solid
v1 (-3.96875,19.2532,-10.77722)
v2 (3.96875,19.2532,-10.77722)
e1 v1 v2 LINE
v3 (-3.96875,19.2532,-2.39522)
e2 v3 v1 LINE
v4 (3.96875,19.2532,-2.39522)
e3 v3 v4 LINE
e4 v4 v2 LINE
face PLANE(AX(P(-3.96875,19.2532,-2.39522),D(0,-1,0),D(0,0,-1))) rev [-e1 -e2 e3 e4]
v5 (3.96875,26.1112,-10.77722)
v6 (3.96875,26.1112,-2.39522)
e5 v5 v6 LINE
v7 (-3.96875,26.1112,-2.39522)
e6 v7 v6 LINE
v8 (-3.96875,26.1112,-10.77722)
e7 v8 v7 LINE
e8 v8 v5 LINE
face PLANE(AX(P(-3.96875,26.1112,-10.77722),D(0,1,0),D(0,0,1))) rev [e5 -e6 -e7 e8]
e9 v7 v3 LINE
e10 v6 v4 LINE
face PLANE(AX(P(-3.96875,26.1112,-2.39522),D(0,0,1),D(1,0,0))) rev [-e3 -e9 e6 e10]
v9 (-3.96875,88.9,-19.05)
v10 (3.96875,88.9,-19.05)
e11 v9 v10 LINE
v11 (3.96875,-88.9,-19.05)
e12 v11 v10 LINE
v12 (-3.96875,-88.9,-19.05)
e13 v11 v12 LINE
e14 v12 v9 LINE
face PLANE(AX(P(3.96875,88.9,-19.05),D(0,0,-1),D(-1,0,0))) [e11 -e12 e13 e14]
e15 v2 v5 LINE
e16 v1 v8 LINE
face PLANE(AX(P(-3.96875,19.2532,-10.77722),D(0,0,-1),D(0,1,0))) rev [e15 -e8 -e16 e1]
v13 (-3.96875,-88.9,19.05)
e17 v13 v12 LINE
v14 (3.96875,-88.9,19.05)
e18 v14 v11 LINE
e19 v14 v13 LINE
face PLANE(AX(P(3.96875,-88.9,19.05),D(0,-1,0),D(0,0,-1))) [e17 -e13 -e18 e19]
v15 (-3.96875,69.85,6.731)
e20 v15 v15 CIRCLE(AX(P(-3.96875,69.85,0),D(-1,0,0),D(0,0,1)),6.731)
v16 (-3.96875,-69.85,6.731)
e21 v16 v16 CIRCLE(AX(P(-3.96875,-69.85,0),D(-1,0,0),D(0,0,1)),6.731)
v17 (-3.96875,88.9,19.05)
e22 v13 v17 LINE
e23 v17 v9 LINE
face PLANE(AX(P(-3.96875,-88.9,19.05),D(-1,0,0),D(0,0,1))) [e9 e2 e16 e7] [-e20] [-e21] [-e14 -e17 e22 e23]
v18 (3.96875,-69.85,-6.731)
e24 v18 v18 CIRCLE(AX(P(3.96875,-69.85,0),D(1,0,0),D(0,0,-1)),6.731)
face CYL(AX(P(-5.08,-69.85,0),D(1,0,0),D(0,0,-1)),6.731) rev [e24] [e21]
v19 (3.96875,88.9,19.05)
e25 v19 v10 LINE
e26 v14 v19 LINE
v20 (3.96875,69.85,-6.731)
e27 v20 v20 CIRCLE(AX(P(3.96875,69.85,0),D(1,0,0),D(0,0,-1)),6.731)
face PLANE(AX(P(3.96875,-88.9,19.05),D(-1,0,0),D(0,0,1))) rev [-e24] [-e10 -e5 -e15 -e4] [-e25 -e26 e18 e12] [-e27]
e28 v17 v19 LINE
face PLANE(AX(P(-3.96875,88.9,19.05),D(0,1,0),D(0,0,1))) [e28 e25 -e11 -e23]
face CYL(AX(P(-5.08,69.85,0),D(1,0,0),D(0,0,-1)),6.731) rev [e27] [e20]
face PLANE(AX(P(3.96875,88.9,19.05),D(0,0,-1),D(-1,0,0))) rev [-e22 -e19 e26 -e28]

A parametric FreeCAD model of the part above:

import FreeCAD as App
import Part
import Sketcher
Q = App.Units.Quantity

doc = App.newDocument("Part")
body = doc.addObject("PartDesign::Body", "Body")

# Sketch on XY plane
sketch1 = body.newObject("Sketcher::SketchObject", "Sketch")
sketch1.AttachmentSupport = (doc.getObject("XY_Plane"), [""])
sketch1.MapMode = "FlatFace"
sketch1.addGeometry([
    Part.LineSegment(App.Vector(-4, 89, 0), App.Vector(-4, -89, 0)),
    Part.LineSegment(App.Vector(-4, -89, 0), App.Vector(4, -89, 0)),
    Part.LineSegment(App.Vector(4, -89, 0), App.Vector(4, 89, 0)),
    Part.LineSegment(App.Vector(4, 89, 0), App.Vector(-4, 89, 0)),
], False)
sketch1.addConstraint([
    Sketcher.Constraint("Coincident", 0, 2, 1, 1),
    Sketcher.Constraint("Coincident", 1, 2, 2, 1),
    Sketcher.Constraint("Coincident", 2, 2, 3, 1),
    Sketcher.Constraint("Coincident", 3, 2, 0, 1),
    Sketcher.Constraint("Vertical", 0),
    Sketcher.Constraint("Horizontal", 1),
    Sketcher.Constraint("Vertical", 2),
    Sketcher.Constraint("Horizontal", 3),
    Sketcher.Constraint("Symmetric", 0, 2, 2, 2, -1, 1),
    Sketcher.Constraint("DistanceY", 0, 2, 0, 1, Q("7 in")),
    Sketcher.Constraint("DistanceX", 1, 1, 1, 2, Q("0.3125 in")),
])
pad1 = body.newObject("PartDesign::Pad", "Pad")
pad1.Profile = sketch1
pad1.Length = Q("1.5 in")
pad1.Midplane = True

# Sketch on YZ plane
sketch2 = body.newObject("Sketcher::SketchObject", "Sketch001")
sketch2.AttachmentSupport = (doc.getObject("YZ_Plane"), [""])
sketch2.MapMode = "FlatFace"
sketch2.addGeometry([
    Part.Circle(App.Vector(70, 0, 0), App.Vector(0, 0, 1), 7),
    Part.Circle(App.Vector(-70, 0, 0), App.Vector(0, 0, 1), 7),
], False)
sketch2.addConstraint([
    Sketcher.Constraint("Equal", 0, 1),
    Sketcher.Constraint("Symmetric", 0, 3, 1, 3, -1, 1),
    Sketcher.Constraint("PointOnObject", 0, 3, -1),
    Sketcher.Constraint("Diameter", 0, Q("0.53 in")),
    Sketcher.Constraint("DistanceX", 1, 3, 0, 3, Q("5.5 in")),
])
pocket1 = body.newObject("PartDesign::Pocket", "Pocket")
pocket1.Profile = sketch2
pocket1.Type = "ThroughAll"
pocket1.Midplane = True

# Sketch on YZ plane
sketch3 = body.newObject("Sketcher::SketchObject", "Sketch002")
sketch3.AttachmentSupport = (doc.getObject("YZ_Plane"), [""])
sketch3.MapMode = "FlatFace"
sketch3.addGeometry([
    Part.LineSegment(App.Vector(26, -2, 0), App.Vector(19, -2, 0)),
    Part.LineSegment(App.Vector(19, -2, 0), App.Vector(19, -11, 0)),
    Part.LineSegment(App.Vector(19, -11, 0), App.Vector(26, -11, 0)),
    Part.LineSegment(App.Vector(26, -11, 0), App.Vector(26, -2, 0)),
], False)
sketch3.addConstraint([
    Sketcher.Constraint("Coincident", 0, 2, 1, 1),
    Sketcher.Constraint("Coincident", 1, 2, 2, 1),
    Sketcher.Constraint("Coincident", 2, 2, 3, 1),
    Sketcher.Constraint("Coincident", 3, 2, 0, 1),
    Sketcher.Constraint("Horizontal", 0),
    Sketcher.Constraint("Vertical", 1),
    Sketcher.Constraint("Horizontal", 2),
    Sketcher.Constraint("Vertical", 3),
    Sketcher.Constraint("DistanceX", 0, 2, 0, 1, Q("0.27 in")),
    Sketcher.Constraint("DistanceY", 1, 2, 1, 1, Q("0.33 in")),
    Sketcher.Constraint("DistanceX", -1, 1, 0, 2, Q("0.758 in")),
    Sketcher.Constraint("DistanceY", 0, 2, -1, 1, Q("0.0943 in")),
])
pocket2 = body.newObject("PartDesign::Pocket", "Pocket001")
pocket2.Profile = sketch3
pocket2.Type = "ThroughAll"
pocket2.Midplane = True

doc.recompute()
